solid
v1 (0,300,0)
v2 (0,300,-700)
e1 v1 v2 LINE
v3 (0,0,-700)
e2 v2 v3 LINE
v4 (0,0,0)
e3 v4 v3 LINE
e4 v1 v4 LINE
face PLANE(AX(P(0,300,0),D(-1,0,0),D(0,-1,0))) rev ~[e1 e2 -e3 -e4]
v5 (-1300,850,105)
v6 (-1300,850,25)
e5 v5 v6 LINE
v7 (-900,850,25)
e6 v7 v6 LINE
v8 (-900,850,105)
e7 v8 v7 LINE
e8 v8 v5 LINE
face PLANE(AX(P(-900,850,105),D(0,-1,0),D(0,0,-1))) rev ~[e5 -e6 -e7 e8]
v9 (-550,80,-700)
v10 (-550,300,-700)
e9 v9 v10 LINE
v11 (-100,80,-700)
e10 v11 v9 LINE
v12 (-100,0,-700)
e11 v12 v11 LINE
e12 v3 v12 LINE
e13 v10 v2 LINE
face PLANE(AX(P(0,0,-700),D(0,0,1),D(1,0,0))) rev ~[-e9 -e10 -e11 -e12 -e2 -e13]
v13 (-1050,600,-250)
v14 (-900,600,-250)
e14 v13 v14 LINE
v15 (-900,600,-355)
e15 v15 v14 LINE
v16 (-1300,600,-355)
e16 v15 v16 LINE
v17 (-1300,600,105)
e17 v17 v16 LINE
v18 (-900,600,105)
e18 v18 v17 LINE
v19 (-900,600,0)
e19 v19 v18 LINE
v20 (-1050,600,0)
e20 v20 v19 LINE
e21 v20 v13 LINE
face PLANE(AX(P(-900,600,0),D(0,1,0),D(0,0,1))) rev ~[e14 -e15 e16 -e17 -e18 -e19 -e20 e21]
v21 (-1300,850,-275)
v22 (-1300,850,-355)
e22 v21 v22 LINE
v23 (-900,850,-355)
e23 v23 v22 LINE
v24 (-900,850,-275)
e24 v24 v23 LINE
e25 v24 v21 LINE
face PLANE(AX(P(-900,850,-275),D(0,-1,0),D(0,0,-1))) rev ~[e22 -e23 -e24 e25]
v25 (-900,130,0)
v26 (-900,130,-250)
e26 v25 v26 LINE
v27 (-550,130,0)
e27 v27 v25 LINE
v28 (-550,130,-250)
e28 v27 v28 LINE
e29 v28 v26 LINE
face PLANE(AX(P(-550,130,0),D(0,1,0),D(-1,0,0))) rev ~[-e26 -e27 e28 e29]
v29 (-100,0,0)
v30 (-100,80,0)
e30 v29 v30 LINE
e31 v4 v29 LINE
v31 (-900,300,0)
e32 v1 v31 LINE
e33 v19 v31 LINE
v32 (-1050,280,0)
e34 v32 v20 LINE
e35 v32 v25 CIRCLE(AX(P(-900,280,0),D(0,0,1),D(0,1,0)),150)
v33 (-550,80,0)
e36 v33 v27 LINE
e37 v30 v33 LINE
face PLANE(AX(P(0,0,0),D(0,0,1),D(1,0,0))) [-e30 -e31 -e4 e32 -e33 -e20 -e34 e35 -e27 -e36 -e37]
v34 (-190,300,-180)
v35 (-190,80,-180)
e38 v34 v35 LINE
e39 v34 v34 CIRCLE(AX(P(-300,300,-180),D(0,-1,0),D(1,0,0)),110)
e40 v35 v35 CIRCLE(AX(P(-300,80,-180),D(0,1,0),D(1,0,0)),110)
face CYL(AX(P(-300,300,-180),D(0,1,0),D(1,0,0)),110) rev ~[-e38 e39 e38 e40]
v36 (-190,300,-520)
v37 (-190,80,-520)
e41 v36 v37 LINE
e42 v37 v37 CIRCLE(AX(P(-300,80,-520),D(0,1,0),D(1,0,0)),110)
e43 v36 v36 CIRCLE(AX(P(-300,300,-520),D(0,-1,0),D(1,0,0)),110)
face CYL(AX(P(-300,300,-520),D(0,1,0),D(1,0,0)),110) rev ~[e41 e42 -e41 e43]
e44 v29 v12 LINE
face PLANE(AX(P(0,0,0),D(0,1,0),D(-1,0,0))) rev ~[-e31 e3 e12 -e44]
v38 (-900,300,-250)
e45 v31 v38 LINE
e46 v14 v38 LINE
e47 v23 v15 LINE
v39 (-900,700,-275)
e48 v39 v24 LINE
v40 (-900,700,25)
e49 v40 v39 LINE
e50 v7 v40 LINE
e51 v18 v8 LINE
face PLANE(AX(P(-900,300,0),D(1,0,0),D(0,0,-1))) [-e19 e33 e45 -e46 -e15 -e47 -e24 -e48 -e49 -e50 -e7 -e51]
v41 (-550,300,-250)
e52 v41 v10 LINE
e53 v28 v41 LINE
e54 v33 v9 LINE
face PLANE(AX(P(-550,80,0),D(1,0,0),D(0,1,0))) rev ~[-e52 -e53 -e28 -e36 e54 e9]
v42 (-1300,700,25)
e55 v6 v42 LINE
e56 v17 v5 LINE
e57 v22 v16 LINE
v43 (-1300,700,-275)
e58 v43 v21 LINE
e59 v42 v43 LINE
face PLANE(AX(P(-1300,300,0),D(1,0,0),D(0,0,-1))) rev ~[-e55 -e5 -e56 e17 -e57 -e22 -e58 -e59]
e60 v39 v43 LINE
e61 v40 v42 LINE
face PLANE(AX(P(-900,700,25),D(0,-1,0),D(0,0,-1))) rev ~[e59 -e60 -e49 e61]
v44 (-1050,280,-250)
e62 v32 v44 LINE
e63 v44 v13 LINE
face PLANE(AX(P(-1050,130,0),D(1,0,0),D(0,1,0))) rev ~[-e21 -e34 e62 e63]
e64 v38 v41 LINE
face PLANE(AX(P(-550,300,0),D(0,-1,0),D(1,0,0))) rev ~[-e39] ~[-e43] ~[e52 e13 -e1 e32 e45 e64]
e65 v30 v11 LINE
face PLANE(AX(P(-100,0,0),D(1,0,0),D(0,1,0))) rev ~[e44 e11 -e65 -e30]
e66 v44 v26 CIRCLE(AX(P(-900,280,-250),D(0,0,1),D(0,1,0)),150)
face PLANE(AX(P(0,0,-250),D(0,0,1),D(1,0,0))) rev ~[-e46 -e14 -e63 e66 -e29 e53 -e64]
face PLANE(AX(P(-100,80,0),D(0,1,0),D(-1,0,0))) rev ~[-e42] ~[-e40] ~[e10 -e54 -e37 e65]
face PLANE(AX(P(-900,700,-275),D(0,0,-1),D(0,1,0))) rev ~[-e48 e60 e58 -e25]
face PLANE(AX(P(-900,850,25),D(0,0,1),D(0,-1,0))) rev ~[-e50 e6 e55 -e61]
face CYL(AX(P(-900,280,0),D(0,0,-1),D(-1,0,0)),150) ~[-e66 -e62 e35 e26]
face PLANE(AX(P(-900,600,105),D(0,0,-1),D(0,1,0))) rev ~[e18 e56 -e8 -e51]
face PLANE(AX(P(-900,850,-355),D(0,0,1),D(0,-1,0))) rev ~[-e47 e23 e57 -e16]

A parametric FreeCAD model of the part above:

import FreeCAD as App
import Part
import Sketcher
from FreeCAD import Vector


def edges_at(feature, points):
    """Names of the edges that pass closest to the given points."""
    edges = feature.Shape.Edges
    near = lambda p: min(range(len(edges)), key=lambda i: edges[i].distToShape(Part.Vertex(*p))[0])
    return sorted({f"Edge{near(p) + 1}" for p in points})

doc = App.newDocument("Part")
body = doc.addObject("PartDesign::Body", "Body")

# Sketch on XY plane
sketch1 = body.newObject("Sketcher::SketchObject", "Sketch")
sketch1.AttachmentSupport = (doc.getObject("XY_Plane"), [""])
sketch1.MapMode = "FlatFace"
sketch1.addGeometry([
    Part.LineSegment(Vector(-100, 0, 0), Vector(0, 0, 0)),  # 0
    Part.LineSegment(Vector(0, 0, 0), Vector(0, 300, 0)),  # 1
    Part.LineSegment(Vector(0, 300, 0), Vector(-550, 300, 0)),  # 2
    Part.LineSegment(Vector(-550, 300, 0), Vector(-550, 80, 0)),  # 3
    Part.LineSegment(Vector(-550, 80, 0), Vector(-100, 80, 0)),  # 4
    Part.LineSegment(Vector(-100, 80, 0), Vector(-100, 0, 0)),  # 5
], False)
sketch1.addConstraint([
    Sketcher.Constraint("Coincident", 0, 2, 1, 1),
    Sketcher.Constraint("Coincident", 1, 2, 2, 1),
    Sketcher.Constraint("Coincident", 2, 2, 3, 1),
    Sketcher.Constraint("Coincident", 3, 2, 4, 1),
    Sketcher.Constraint("Coincident", 4, 2, 5, 1),
    Sketcher.Constraint("Coincident", 5, 2, 0, 1),
    Sketcher.Constraint("Horizontal", 0),
    Sketcher.Constraint("Vertical", 1),
    Sketcher.Constraint("Horizontal", 2),
    Sketcher.Constraint("Vertical", 3),
    Sketcher.Constraint("Horizontal", 4),
    Sketcher.Constraint("Vertical", 5),
    Sketcher.Constraint("Coincident", 0, 2, -1, 1),
    Sketcher.Constraint("DistanceX", 0, 1, 0, 2, 100.0),
    Sketcher.Constraint("DistanceX", 4, 1, 4, 2, 450.0),
    Sketcher.Constraint("DistanceY", 1, 1, 1, 2, 300.0),
    Sketcher.Constraint("DistanceY", 5, 2, 5, 1, 80.0),
])
pad1 = body.newObject("PartDesign::Pad", "Pad")
pad1.Profile = sketch1
pad1.Length = 700
pad1.Reversed = True

# Sketch on XY plane
sketch2 = body.newObject("Sketcher::SketchObject", "Sketch001")
sketch2.AttachmentSupport = (doc.getObject("XY_Plane"), [""])
sketch2.MapMode = "FlatFace"
sketch2.addGeometry([
    Part.LineSegment(Vector(-1050, 130, 0), Vector(-550, 130, 0)),  # 0
    Part.LineSegment(Vector(-550, 130, 0), Vector(-550, 300, 0)),  # 1
    Part.LineSegment(Vector(-550, 300, 0), Vector(-900, 300, 0)),  # 2
    Part.LineSegment(Vector(-900, 300, 0), Vector(-900, 600, 0)),  # 3
    Part.LineSegment(Vector(-900, 600, 0), Vector(-1050, 600, 0)),  # 4
    Part.LineSegment(Vector(-1050, 600, 0), Vector(-1050, 130, 0)),  # 5
], False)
sketch2.addConstraint([
    Sketcher.Constraint("Coincident", 0, 2, 1, 1),
    Sketcher.Constraint("Coincident", 1, 2, 2, 1),
    Sketcher.Constraint("Coincident", 2, 2, 3, 1),
    Sketcher.Constraint("Coincident", 3, 2, 4, 1),
    Sketcher.Constraint("Coincident", 4, 2, 5, 1),
    Sketcher.Constraint("Coincident", 5, 2, 0, 1),
    Sketcher.Constraint("Horizontal", 0),
    Sketcher.Constraint("Vertical", 1),
    Sketcher.Constraint("Horizontal", 2),
    Sketcher.Constraint("Vertical", 3),
    Sketcher.Constraint("Horizontal", 4),
    Sketcher.Constraint("Vertical", 5),
    Sketcher.Constraint("DistanceX", 0, 1, 0, 2, 500.0),
    Sketcher.Constraint("DistanceX", 4, 2, 4, 1, 150.0),
    Sketcher.Constraint("DistanceY", 3, 1, 3, 2, 300.0),
    Sketcher.Constraint("DistanceY", 5, 2, 5, 1, 470.0),
    Sketcher.Constraint("DistanceY", -1, 1, 1, 2, 300.0),
    Sketcher.Constraint("DistanceX", 0, 2, -1, 1, 550.0),
])
pad2 = body.newObject("PartDesign::Pad", "Pad001")
pad2.Profile = sketch2
pad2.Length = 250
pad2.Reversed = True

# Sketch on YZ plane
sketch3 = body.newObject("Sketcher::SketchObject", "Sketch002")
sketch3.AttachmentSupport = (doc.getObject("YZ_Plane"), [""])
sketch3.MapMode = "FlatFace"
sketch3.AttachmentOffset = App.Placement(Vector(0, 0, -900), App.Rotation())
sketch3.addGeometry([
    Part.LineSegment(Vector(600, 105, 0), Vector(600, -355, 0)),  # 0
    Part.LineSegment(Vector(600, -355, 0), Vector(850, -355, 0)),  # 1
    Part.LineSegment(Vector(850, -355, 0), Vector(850, -275, 0)),  # 2
    Part.LineSegment(Vector(850, -275, 0), Vector(700, -275, 0)),  # 3
    Part.LineSegment(Vector(700, -275, 0), Vector(700, 25, 0)),  # 4
    Part.LineSegment(Vector(700, 25, 0), Vector(850, 25, 0)),  # 5
    Part.LineSegment(Vector(850, 25, 0), Vector(850, 105, 0)),  # 6
    Part.LineSegment(Vector(850, 105, 0), Vector(600, 105, 0)),  # 7
], False)
sketch3.addConstraint([
    Sketcher.Constraint("Coincident", 0, 2, 1, 1),
    Sketcher.Constraint("Coincident", 1, 2, 2, 1),
    Sketcher.Constraint("Coincident", 2, 2, 3, 1),
    Sketcher.Constraint("Coincident", 3, 2, 4, 1),
    Sketcher.Constraint("Coincident", 4, 2, 5, 1),
    Sketcher.Constraint("Coincident", 5, 2, 6, 1),
    Sketcher.Constraint("Coincident", 6, 2, 7, 1),
    Sketcher.Constraint("Coincident", 7, 2, 0, 1),
    Sketcher.Constraint("Vertical", 0),
    Sketcher.Constraint("Horizontal", 1),
    Sketcher.Constraint("Vertical", 2),
    Sketcher.Constraint("Horizontal", 3),
    Sketcher.Constraint("Vertical", 4),
    Sketcher.Constraint("Horizontal", 5),
    Sketcher.Constraint("Vertical", 6),
    Sketcher.Constraint("Horizontal", 7),
    Sketcher.Constraint("Vertical", 2, 2, 5, 2),
    Sketcher.Constraint("Equal", 2, 6),
    Sketcher.Constraint("DistanceX", 1, 1, 1, 2, 250.0),
    Sketcher.Constraint("DistanceX", 3, 2, 3, 1, 150.0),
    Sketcher.Constraint("DistanceY", 2, 1, 2, 2, 80.0),
    Sketcher.Constraint("DistanceY", 4, 1, 4, 2, 300.0),
    Sketcher.Constraint("DistanceY", -1, 1, 6, 2, 105.0),
    Sketcher.Constraint("DistanceX", -1, 1, 0, 2, 600.0),
])
pad3 = body.newObject("PartDesign::Pad", "Pad002")
pad3.Profile = sketch3
pad3.Length = 400
pad3.Reversed = True
doc.recompute()

fillet = body.newObject("PartDesign::Fillet", "Fillet")
fillet.Base = (pad3, edges_at(pad3, [(-1050, 130, -125)]))
fillet.Radius = 150

# Sketch on XZ plane
sketch4 = body.newObject("Sketcher::SketchObject", "Sketch003")
sketch4.AttachmentSupport = (doc.getObject("XZ_Plane"), [""])
sketch4.MapMode = "FlatFace"
sketch4.AttachmentOffset = App.Placement(Vector(0, 0, -300), App.Rotation())
sketch4.addGeometry([
    Part.Circle(Vector(-300, -180, 0), Vector(0, 0, 1), 110),
    Part.Circle(Vector(-300, -520, 0), Vector(0, 0, 1), 110),
], False)
sketch4.addConstraint([
    Sketcher.Constraint("Equal", 0, 1),
    Sketcher.Constraint("Vertical", 0, 3, 1, 3),
    Sketcher.Constraint("Diameter", 0, 220.0),
    Sketcher.Constraint("DistanceX", 0, 3, -1, 1, 300.0),
    Sketcher.Constraint("DistanceY", 0, 3, -1, 1, 180.0),
    Sketcher.Constraint("DistanceY", 1, 3, 0, 3, 340.0),
])
pocket1 = body.newObject("PartDesign::Pocket", "Pocket")
pocket1.Profile = sketch4
pocket1.Length = 449.2125
pocket1.Reversed = True

doc.recompute()
